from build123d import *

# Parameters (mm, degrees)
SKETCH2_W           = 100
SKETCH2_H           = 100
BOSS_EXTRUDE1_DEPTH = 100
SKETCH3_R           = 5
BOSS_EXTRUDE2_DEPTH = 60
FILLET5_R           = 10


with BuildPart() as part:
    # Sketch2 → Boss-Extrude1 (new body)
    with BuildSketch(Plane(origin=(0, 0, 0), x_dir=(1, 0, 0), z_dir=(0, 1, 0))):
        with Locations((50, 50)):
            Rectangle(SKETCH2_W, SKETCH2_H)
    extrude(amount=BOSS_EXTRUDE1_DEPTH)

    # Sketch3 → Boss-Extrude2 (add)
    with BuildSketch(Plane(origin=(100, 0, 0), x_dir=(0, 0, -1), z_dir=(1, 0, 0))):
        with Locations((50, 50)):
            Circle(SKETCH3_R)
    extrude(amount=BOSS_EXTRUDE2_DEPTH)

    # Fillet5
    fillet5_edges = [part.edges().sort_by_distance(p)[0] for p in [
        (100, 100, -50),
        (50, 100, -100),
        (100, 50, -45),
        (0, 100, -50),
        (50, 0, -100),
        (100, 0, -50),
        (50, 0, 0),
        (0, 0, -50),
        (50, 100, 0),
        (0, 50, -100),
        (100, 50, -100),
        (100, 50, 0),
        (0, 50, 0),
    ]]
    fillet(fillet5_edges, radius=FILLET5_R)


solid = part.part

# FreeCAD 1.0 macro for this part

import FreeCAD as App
import Part
import Sketcher

V = App.Vector
Q = App.Units.Quantity


def edges_at(feature, points):
    """Names of the edges that pass closest to the given points."""
    edges = feature.Shape.Edges
    near = lambda p: min(range(len(edges)), key=lambda i: edges[i].distToShape(Part.Vertex(*p))[0])
    return sorted({f"Edge{near(p) + 1}" for p in points})


def add_polygon(sketch, points):
    """Adds a closed chain of lines whose ends are joined by coincident constraints."""
    first, n = sketch.GeometryCount, len(points)
    for a, b in zip(points, points[1:] + points[:1]):
        sketch.addGeometry(Part.LineSegment(App.Vector(*a, 0), App.Vector(*b, 0)), False)
    for i in range(n):
        sketch.addConstraint(Sketcher.Constraint("Coincident", first + i, 2, first + (i + 1) % n, 1))

doc = App.newDocument("Part")
body = doc.addObject("PartDesign::Body", "Body")

sketch1 = body.newObject("Sketcher::SketchObject", "Sketch")
sketch1.AttachmentSupport = (doc.getObject("XZ_Plane"), [""])
sketch1.MapMode = "FlatFace"
add_polygon(sketch1, [(0, -100), (0, 0), (100, 0), (100, -100)])
sketch1.addConstraint(Sketcher.Constraint("Vertical", 0))
sketch1.addConstraint(Sketcher.Constraint("Horizontal", 1))
sketch1.addConstraint(Sketcher.Constraint("Vertical", 2))
sketch1.addConstraint(Sketcher.Constraint("Horizontal", 3))
sketch1.addConstraint(Sketcher.Constraint("Coincident", 0, 2, -1, 1))
sketch1.addConstraint(Sketcher.Constraint("Equal", 3, 0))
sketch1.addConstraint(Sketcher.Constraint("DistanceX", 1, 1, 1, 2, Q("100 mm")))
pad1 = body.newObject("PartDesign::Pad", "Pad")
pad1.Profile = sketch1
pad1.Length = 100
pad1.Reversed = True

sketch2 = body.newObject("Sketcher::SketchObject", "Sketch001")
sketch2.AttachmentSupport = (doc.getObject("YZ_Plane"), [""])
sketch2.MapMode = "FlatFace"
sketch2.AttachmentOffset = App.Placement(V(0, 0, 100), App.Rotation())
sketch2.addGeometry(Part.Circle(V(50, -50, 0), V(0, 0, 1), 5), False)
sketch2.addConstraint(Sketcher.Constraint("Diameter", 0, Q("10 mm")))
sketch2.addConstraint(Sketcher.Constraint("DistanceX", -1, 1, 0, 3, Q("50 mm")))
sketch2.addConstraint(Sketcher.Constraint("DistanceY", 0, 3, -1, 1, Q("50 mm")))
pad2 = body.newObject("PartDesign::Pad", "Pad001")
pad2.Profile = sketch2
pad2.Length = 60
doc.recompute()

fillet = body.newObject("PartDesign::Fillet", "Fillet")
fillet.Base = (pad2, edges_at(pad2, [
    (100, 100, -50),
    (50, 100, -100),
    (100, 50, -45),
    (0, 100, -50),
    (50, 0, -100),
    (100, 0, -50),
    (50, 0, 0),
    (0, 0, -50),
    (50, 100, 0),
    (0, 50, -100),
    (100, 50, -100),
    (100, 50, 0),
    (0, 50, 0),
]))
fillet.Radius = 10

doc.recompute()
